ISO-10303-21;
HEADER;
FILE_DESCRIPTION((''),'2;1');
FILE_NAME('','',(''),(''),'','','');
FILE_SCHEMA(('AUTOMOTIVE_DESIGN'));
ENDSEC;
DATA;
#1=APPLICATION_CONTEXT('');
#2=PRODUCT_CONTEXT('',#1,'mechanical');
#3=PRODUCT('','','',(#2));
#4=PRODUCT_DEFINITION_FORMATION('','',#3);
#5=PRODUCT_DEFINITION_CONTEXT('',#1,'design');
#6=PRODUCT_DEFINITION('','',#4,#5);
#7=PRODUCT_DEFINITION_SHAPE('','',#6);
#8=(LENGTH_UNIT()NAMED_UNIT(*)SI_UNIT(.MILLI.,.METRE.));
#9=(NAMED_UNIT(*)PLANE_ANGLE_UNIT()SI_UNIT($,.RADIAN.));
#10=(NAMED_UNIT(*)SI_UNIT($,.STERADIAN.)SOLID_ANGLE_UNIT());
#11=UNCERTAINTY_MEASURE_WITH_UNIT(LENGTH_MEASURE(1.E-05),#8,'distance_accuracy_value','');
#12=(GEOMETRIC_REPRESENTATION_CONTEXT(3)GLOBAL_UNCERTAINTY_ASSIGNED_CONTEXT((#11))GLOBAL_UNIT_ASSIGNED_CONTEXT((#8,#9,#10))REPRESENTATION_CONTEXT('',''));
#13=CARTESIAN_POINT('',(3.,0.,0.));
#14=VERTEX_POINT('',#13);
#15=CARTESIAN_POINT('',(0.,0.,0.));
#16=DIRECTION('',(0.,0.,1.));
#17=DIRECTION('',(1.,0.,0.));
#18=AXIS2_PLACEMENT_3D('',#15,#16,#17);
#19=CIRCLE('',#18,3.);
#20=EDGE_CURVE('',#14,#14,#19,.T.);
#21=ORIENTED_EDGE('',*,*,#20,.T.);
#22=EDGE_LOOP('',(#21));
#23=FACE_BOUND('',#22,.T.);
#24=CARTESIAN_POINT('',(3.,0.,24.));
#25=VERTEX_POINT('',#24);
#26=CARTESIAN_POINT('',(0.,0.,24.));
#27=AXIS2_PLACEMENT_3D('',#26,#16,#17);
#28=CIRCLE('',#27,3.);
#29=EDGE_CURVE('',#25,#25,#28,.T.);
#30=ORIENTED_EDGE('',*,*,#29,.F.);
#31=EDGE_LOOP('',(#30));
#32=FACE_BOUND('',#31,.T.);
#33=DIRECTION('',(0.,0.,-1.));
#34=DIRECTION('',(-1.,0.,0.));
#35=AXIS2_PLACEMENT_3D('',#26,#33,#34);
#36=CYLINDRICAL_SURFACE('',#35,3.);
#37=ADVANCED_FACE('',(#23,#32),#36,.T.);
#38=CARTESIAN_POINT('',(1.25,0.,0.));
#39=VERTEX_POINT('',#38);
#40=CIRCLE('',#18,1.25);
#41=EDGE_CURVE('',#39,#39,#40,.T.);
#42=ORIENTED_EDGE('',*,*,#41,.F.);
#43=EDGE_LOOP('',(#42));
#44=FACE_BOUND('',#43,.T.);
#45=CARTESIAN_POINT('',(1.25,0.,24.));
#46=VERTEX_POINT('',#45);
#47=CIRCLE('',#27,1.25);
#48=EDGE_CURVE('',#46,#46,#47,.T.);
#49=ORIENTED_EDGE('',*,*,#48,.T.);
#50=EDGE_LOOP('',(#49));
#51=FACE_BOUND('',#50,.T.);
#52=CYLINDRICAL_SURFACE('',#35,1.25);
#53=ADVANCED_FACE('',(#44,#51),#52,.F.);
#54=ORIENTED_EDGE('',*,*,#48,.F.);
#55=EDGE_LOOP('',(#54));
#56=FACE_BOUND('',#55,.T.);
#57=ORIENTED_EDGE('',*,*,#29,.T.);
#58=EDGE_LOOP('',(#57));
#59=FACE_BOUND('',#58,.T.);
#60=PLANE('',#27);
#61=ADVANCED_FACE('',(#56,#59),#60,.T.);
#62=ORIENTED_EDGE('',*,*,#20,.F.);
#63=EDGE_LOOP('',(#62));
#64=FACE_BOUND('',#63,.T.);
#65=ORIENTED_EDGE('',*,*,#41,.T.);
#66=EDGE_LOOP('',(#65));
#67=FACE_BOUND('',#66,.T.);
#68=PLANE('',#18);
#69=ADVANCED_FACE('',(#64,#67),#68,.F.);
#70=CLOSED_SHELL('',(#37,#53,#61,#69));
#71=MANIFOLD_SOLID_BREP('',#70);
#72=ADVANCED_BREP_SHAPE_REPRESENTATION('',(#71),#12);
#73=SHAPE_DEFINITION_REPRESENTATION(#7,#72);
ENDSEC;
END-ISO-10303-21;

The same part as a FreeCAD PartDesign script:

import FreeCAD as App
import Part
import Sketcher

V = App.Vector

doc = App.newDocument("Part")
params = doc.addObject("Spreadsheet::Sheet", "Params")
for row, (alias, value) in enumerate([
    ("sketch1_diameter", "6 mm"),
    ("sketch1_diameter2", "2.5 mm"),
    ("pad1_length", "24 mm"),
], start=1):
    params.set(f"A{row}", alias)
    params.set(f"B{row}", "=" + value)
    params.setAlias(f"B{row}", alias)

body = doc.addObject("PartDesign::Body", "Body")

sketch1 = body.newObject("Sketcher::SketchObject", "Sketch")
sketch1.AttachmentSupport = (doc.getObject("XY_Plane"), [""])
sketch1.MapMode = "FlatFace"
sketch1.addGeometry([
    Part.Circle(V(0, 0, 0), V(0, 0, 1), 3),
    Part.Circle(V(0, 0, 0), V(0, 0, 1), 1.25),
], False)
sketch1.addConstraint([
    Sketcher.Constraint("Coincident", 0, 3, -1, 1),
    Sketcher.Constraint("Coincident", 1, 3, -1, 1),
    Sketcher.Constraint("Diameter", 0, 6.0),
    Sketcher.Constraint("Diameter", 1, 2.5),
])
sketch1.setExpression("Constraints[2]", "Params.sketch1_diameter")
sketch1.setExpression("Constraints[3]", "Params.sketch1_diameter2")
pad1 = body.newObject("PartDesign::Pad", "Pad")
pad1.Profile = sketch1
pad1.setExpression("Length", "Params.pad1_length")

doc.recompute()
